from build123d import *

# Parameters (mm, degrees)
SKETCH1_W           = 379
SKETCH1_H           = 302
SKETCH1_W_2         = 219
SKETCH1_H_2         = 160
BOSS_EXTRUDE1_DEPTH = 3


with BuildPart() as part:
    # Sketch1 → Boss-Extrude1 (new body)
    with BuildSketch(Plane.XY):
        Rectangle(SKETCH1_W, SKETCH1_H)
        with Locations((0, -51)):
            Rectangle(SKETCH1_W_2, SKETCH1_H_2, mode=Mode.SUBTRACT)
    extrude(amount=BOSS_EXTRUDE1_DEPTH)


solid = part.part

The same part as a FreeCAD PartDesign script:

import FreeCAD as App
import Part
import Sketcher

V = App.Vector

doc = App.newDocument("Part")
params = doc.addObject("Spreadsheet::Sheet", "Params")
for row, (alias, value) in enumerate([
    ("sketch1_width", "379 mm"),
    ("sketch1_width2", "219 mm"),
    ("sketch1_height", "302 mm"),
    ("sketch1_height2", "160 mm"),
    ("pad1_length", "3 mm"),
], start=1):
    params.set(f"A{row}", alias)
    params.set(f"B{row}", "=" + value)
    params.setAlias(f"B{row}", alias)

body = doc.addObject("PartDesign::Body", "Body")

# Sketch on XY plane
sketch1 = body.newObject("Sketcher::SketchObject", "Sketch")
sketch1.AttachmentSupport = (doc.getObject("XY_Plane"), [""])
sketch1.MapMode = "FlatFace"
sketch1.addGeometry([
    Part.LineSegment(V(-190, 151, 0), V(-190, -151, 0)),  # 0
    Part.LineSegment(V(-190, -151, 0), V(190, -151, 0)),  # 1
    Part.LineSegment(V(190, -151, 0), V(190, 151, 0)),  # 2
    Part.LineSegment(V(190, 151, 0), V(-190, 151, 0)),  # 3
    Part.LineSegment(V(110, -131, 0), V(-110, -131, 0)),  # 4
    Part.LineSegment(V(-110, -131, 0), V(-110, 29, 0)),  # 5
    Part.LineSegment(V(-110, 29, 0), V(110, 29, 0)),  # 6
    Part.LineSegment(V(110, 29, 0), V(110, -131, 0)),  # 7
], False)
sketch1.addConstraint([
    Sketcher.Constraint("Coincident", 0, 2, 1, 1),
    Sketcher.Constraint("Coincident", 1, 2, 2, 1),
    Sketcher.Constraint("Coincident", 2, 2, 3, 1),
    Sketcher.Constraint("Coincident", 3, 2, 0, 1),
    Sketcher.Constraint("Coincident", 4, 2, 5, 1),
    Sketcher.Constraint("Coincident", 5, 2, 6, 1),
    Sketcher.Constraint("Coincident", 6, 2, 7, 1),
    Sketcher.Constraint("Coincident", 7, 2, 4, 1),
    Sketcher.Constraint("Vertical", 0),
    Sketcher.Constraint("Horizontal", 1),
    Sketcher.Constraint("Vertical", 2),
    Sketcher.Constraint("Horizontal", 3),
    Sketcher.Constraint("Horizontal", 4),
    Sketcher.Constraint("Vertical", 5),
    Sketcher.Constraint("Horizontal", 6),
    Sketcher.Constraint("Vertical", 7),
    Sketcher.Constraint("Symmetric", 0, 2, 2, 2, -1, 1),
    Sketcher.Constraint("DistanceX", 1, 1, 1, 2, 379.0),
    Sketcher.Constraint("DistanceX", 4, 2, 4, 1, 219.0),
    Sketcher.Constraint("DistanceY", 0, 2, 0, 1, 302.0),
    Sketcher.Constraint("DistanceY", 5, 1, 5, 2, 160.0),
    Sketcher.Constraint("DistanceY", 4, 2, -1, 1, 131.0),
    Sketcher.Constraint("DistanceX", 0, 2, 4, 2, 80.0),
])
sketch1.setExpression("Constraints[17]", "Params.sketch1_width")
sketch1.setExpression("Constraints[18]", "Params.sketch1_width2")
sketch1.setExpression("Constraints[19]", "Params.sketch1_height")
sketch1.setExpression("Constraints[20]", "Params.sketch1_height2")
pad1 = body.newObject("PartDesign::Pad", "Pad")
pad1.Profile = sketch1
pad1.setExpression("Length", "Params.pad1_length")

doc.recompute()
